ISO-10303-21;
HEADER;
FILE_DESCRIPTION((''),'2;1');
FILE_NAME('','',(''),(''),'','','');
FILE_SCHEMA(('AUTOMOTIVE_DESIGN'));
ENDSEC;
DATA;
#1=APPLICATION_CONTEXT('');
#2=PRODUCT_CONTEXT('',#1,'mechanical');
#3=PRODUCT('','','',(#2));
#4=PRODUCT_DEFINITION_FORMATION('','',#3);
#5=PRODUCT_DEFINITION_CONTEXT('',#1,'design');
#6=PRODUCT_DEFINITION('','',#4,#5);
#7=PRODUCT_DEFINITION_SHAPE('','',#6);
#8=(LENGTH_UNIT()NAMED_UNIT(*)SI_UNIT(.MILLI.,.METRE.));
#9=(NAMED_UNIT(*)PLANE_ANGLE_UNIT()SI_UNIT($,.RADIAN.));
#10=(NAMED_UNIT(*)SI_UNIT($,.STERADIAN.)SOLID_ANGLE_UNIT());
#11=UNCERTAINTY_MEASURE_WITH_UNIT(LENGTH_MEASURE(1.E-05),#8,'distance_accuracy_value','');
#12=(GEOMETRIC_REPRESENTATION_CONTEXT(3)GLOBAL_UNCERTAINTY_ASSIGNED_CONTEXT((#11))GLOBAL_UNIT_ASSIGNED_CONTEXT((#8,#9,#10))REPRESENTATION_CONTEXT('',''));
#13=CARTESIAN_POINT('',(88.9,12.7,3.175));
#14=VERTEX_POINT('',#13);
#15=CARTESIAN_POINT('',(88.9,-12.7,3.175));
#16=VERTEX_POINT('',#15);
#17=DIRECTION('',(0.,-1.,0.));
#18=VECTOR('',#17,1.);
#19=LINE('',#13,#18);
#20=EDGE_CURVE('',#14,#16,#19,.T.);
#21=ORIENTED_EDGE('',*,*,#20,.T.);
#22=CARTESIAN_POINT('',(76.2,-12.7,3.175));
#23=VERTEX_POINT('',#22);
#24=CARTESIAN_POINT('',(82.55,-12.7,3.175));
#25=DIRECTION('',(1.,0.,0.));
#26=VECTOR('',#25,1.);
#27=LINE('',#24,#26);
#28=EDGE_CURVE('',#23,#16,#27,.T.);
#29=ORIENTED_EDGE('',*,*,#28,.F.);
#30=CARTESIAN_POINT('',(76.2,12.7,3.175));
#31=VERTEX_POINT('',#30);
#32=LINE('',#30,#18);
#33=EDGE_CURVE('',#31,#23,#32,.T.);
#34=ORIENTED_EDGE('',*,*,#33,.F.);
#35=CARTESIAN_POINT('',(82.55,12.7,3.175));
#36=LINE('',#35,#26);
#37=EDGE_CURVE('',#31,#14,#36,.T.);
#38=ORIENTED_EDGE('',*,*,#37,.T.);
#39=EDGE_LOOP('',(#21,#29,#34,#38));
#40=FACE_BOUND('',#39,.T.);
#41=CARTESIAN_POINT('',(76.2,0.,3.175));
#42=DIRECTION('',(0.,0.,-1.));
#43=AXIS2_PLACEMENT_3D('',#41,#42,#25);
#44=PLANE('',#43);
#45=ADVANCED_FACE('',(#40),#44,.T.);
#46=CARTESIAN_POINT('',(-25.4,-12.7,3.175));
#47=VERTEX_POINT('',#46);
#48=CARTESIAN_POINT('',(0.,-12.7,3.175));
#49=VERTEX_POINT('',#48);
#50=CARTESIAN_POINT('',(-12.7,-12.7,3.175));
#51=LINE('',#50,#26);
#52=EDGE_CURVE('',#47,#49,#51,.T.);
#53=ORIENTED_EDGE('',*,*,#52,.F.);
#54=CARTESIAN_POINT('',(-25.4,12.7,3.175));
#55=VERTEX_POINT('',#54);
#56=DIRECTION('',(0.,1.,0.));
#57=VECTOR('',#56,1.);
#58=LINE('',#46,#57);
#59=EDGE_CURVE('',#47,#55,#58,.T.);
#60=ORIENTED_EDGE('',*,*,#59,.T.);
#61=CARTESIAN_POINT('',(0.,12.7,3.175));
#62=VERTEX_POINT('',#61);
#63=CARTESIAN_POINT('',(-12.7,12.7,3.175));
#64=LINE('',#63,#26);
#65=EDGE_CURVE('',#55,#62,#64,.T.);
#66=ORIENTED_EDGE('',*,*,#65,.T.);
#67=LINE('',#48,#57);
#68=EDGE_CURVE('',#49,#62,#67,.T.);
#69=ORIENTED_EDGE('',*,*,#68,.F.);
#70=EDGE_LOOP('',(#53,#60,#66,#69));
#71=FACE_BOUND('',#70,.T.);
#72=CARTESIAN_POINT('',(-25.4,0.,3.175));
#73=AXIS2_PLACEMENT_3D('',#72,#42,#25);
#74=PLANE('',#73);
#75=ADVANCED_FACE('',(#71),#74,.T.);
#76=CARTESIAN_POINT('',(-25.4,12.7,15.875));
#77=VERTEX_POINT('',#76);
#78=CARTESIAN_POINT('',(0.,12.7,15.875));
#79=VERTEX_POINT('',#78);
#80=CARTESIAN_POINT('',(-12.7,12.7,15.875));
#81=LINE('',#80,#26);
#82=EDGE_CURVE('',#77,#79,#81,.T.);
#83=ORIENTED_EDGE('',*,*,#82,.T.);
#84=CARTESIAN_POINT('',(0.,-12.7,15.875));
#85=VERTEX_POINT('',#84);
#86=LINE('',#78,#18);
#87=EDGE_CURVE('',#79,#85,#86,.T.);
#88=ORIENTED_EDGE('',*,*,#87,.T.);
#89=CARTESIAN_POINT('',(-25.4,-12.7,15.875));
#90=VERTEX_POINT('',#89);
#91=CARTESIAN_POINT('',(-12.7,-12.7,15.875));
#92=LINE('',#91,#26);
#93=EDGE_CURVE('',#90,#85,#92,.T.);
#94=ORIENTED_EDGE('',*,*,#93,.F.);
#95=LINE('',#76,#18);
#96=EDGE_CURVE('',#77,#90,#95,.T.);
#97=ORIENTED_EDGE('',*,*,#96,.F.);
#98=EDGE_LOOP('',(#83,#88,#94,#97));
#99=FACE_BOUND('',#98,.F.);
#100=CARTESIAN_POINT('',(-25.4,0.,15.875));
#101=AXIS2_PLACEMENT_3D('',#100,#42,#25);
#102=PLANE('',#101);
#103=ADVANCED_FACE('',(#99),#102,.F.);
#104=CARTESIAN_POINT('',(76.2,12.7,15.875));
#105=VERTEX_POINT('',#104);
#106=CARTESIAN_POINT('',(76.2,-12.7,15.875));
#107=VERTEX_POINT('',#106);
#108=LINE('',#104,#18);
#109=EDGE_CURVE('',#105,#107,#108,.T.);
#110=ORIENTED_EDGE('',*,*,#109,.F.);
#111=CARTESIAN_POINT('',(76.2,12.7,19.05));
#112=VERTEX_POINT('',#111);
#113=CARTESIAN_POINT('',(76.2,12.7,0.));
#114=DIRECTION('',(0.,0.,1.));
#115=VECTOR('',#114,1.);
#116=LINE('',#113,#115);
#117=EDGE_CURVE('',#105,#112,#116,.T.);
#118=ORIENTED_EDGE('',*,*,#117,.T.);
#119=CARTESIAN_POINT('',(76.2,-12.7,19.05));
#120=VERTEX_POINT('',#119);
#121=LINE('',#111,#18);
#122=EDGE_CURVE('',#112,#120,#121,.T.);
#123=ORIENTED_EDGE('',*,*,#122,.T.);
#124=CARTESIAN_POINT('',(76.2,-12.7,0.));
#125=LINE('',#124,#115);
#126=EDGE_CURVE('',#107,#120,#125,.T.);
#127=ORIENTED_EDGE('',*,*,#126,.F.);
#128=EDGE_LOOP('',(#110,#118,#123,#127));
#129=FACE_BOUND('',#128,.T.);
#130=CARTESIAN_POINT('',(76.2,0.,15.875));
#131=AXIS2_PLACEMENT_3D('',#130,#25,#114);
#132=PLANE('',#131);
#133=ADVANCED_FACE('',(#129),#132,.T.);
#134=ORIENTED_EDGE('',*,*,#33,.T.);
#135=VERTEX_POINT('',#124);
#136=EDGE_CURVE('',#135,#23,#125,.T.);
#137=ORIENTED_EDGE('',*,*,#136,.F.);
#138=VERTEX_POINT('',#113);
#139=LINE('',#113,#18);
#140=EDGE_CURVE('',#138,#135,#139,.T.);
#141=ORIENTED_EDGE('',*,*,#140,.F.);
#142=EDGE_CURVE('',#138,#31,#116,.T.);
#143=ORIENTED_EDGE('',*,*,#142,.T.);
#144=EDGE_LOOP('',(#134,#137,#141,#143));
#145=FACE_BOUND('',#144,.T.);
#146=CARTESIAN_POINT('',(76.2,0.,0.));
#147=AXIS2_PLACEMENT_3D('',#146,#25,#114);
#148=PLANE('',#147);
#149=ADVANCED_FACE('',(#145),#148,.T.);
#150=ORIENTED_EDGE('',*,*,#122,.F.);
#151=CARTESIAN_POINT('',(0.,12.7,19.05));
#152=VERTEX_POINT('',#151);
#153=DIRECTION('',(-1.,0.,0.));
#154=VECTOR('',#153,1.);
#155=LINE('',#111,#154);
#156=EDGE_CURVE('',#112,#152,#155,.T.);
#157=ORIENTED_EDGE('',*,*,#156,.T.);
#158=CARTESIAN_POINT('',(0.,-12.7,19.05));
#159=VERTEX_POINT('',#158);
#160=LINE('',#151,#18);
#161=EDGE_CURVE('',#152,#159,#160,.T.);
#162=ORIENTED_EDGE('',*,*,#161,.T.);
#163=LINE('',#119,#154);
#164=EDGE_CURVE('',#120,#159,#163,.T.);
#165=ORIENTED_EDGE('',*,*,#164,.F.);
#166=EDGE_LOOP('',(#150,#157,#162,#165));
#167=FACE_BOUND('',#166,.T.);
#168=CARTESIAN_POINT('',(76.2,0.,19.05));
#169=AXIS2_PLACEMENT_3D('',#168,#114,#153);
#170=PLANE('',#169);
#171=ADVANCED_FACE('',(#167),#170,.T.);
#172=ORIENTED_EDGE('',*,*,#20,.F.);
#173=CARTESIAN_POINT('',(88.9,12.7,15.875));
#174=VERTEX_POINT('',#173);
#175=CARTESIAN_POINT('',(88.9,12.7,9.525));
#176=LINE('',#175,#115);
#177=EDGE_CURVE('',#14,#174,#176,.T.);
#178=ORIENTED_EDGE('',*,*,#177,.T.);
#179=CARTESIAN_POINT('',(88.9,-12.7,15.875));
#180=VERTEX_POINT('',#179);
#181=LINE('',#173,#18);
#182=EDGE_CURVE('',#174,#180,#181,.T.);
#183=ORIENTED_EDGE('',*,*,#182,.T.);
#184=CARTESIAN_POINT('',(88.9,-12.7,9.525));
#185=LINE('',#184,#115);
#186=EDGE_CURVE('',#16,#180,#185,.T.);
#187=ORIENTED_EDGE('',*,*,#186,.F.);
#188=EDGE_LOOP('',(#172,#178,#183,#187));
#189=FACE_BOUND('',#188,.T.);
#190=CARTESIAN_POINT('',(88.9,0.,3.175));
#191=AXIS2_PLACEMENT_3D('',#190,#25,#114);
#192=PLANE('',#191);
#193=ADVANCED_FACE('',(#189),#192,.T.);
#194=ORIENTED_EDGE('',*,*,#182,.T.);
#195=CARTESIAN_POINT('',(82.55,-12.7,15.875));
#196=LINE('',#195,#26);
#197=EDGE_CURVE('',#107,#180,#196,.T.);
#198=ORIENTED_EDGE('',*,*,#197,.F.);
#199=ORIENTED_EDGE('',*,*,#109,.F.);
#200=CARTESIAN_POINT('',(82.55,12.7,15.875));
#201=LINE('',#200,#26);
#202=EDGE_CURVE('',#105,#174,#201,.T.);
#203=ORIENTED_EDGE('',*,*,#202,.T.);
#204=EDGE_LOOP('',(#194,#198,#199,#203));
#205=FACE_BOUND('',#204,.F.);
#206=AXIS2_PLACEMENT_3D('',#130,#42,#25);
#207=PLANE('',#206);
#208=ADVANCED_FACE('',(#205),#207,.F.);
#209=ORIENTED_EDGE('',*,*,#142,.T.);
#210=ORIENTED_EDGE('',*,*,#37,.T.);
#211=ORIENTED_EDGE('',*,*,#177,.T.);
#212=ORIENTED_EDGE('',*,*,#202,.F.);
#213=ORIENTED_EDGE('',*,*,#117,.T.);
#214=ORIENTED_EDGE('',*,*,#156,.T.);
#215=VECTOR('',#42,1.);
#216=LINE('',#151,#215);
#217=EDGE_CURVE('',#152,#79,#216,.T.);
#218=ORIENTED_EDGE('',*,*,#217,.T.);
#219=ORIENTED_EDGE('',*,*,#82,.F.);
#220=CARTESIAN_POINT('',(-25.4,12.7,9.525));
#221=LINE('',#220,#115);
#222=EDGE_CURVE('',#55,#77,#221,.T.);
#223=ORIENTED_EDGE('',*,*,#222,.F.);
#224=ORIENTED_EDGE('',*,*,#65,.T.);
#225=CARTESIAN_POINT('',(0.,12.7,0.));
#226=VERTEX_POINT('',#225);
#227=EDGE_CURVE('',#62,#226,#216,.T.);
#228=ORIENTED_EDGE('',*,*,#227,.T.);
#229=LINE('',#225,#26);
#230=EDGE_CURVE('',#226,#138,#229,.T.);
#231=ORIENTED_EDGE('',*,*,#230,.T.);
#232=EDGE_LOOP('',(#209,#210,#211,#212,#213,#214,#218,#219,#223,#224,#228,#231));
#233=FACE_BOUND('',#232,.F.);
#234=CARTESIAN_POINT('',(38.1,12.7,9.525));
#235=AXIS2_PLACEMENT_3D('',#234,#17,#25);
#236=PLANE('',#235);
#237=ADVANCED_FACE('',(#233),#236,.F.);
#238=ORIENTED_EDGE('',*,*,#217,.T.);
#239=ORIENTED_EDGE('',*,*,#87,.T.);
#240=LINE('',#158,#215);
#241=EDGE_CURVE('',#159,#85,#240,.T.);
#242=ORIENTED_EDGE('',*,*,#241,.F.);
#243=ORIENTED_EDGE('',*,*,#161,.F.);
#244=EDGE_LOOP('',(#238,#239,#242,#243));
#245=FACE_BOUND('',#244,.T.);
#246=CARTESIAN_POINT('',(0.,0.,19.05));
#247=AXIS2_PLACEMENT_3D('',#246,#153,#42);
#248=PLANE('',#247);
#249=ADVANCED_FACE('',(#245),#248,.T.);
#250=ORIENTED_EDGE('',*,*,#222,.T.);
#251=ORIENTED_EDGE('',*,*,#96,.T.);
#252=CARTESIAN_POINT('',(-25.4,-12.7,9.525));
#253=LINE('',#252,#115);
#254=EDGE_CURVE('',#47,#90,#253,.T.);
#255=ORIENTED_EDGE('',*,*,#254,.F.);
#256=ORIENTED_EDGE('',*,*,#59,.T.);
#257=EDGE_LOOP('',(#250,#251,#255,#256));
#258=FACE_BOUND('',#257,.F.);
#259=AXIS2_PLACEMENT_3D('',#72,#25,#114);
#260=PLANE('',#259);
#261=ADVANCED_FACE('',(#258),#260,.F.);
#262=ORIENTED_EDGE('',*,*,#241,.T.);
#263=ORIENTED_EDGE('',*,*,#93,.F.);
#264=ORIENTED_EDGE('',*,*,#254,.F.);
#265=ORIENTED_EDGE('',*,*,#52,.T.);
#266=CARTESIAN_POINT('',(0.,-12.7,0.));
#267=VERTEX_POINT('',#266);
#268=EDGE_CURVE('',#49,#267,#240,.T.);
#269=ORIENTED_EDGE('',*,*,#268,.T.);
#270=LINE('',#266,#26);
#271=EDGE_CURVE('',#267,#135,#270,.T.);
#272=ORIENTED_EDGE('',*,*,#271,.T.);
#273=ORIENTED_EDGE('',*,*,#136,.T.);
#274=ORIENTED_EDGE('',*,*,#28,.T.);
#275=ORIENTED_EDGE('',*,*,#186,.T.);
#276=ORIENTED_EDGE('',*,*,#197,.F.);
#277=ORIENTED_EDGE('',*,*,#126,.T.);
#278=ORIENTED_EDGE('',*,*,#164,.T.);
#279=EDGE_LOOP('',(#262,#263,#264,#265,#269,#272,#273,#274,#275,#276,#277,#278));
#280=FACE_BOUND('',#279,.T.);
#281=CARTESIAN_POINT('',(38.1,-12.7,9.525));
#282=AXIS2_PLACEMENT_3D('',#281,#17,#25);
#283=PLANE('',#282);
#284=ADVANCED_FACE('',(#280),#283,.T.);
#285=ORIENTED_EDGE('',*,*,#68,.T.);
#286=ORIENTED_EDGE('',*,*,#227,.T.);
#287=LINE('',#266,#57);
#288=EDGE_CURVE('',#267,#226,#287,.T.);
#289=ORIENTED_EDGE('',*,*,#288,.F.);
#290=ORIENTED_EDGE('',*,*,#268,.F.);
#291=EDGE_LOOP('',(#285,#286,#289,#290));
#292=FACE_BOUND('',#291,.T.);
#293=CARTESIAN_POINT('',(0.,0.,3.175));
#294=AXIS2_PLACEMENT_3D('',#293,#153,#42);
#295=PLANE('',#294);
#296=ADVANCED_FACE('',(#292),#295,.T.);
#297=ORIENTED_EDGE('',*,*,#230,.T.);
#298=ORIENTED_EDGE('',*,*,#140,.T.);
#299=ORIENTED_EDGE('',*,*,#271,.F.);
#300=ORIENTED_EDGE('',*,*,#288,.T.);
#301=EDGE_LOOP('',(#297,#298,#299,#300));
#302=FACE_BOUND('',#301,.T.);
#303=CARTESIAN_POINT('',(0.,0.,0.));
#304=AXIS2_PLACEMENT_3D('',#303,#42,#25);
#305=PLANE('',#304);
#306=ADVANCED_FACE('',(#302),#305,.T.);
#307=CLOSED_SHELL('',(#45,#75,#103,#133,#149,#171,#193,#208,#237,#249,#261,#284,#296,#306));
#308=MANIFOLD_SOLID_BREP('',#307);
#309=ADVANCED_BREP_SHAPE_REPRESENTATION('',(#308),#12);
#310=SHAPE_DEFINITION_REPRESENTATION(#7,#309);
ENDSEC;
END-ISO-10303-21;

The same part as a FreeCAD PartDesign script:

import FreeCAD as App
import Part
import Sketcher
from FreeCAD import Vector
Q = App.Units.Quantity


def add_polygon(sketch, points):
    """Adds a closed chain of lines whose ends are joined by coincident constraints."""
    first, n = sketch.GeometryCount, len(points)
    for a, b in zip(points, points[1:] + points[:1]):
        sketch.addGeometry(Part.LineSegment(App.Vector(*a, 0), App.Vector(*b, 0)), False)
    for i in range(n):
        sketch.addConstraint(Sketcher.Constraint("Coincident", first + i, 2, first + (i + 1) % n, 1))

doc = App.newDocument("Part")
body = doc.addObject("PartDesign::Body", "Body")

sketch1 = body.newObject("Sketcher::SketchObject", "Sketch")
sketch1.AttachmentSupport = (doc.getObject("XZ_Plane"), [""])
sketch1.MapMode = "FlatFace"
add_polygon(sketch1, [(0, 0), (76.2, 0), (76.2, 3.2), (88.9, 3.2), (88.9, 15.9), (76.2, 15.9), (76.2, 19.1), (0, 19.1), (0, 15.9), (-25.4, 15.9), (-25.4, 3.2), (0, 3.2)])
sketch1.addConstraint(Sketcher.Constraint("Horizontal", 0))
sketch1.addConstraint(Sketcher.Constraint("Vertical", 1))
sketch1.addConstraint(Sketcher.Constraint("Horizontal", 2))
sketch1.addConstraint(Sketcher.Constraint("Vertical", 3))
sketch1.addConstraint(Sketcher.Constraint("Horizontal", 4))
sketch1.addConstraint(Sketcher.Constraint("Vertical", 5))
sketch1.addConstraint(Sketcher.Constraint("Horizontal", 6))
sketch1.addConstraint(Sketcher.Constraint("Vertical", 7))
sketch1.addConstraint(Sketcher.Constraint("Horizontal", 8))
sketch1.addConstraint(Sketcher.Constraint("Vertical", 9))
sketch1.addConstraint(Sketcher.Constraint("Horizontal", 10))
sketch1.addConstraint(Sketcher.Constraint("Vertical", 11))
sketch1.addConstraint(Sketcher.Constraint("Coincident", 11, 2, -1, 1))
sketch1.addConstraint(Sketcher.Constraint("PointOnObject", 6, 2, -2))
sketch1.addConstraint(Sketcher.Constraint("Horizontal", 4, 2, 7, 2))
sketch1.addConstraint(Sketcher.Constraint("Horizontal", 2, 2, 9, 2))
sketch1.addConstraint(Sketcher.Constraint("Vertical", 1, 2, 4, 2))
sketch1.addConstraint(Sketcher.Constraint("Equal", 4, 3))
sketch1.addConstraint(Sketcher.Constraint("Equal", 1, 5))
sketch1.addConstraint(Sketcher.Constraint("DistanceX", 0, 1, 0, 2, Q("3 in")))
sketch1.addConstraint(Sketcher.Constraint("DistanceX", 8, 2, 8, 1, Q("1 in")))
sketch1.addConstraint(Sketcher.Constraint("DistanceX", 2, 1, 2, 2, Q("0.5 in")))
sketch1.addConstraint(Sketcher.Constraint("DistanceY", 1, 1, 1, 2, Q("0.125 in")))
pad1 = body.newObject("PartDesign::Pad", "Pad")
pad1.Profile = sketch1
pad1.Length = Q("1 in")
pad1.Midplane = True

doc.recompute()
